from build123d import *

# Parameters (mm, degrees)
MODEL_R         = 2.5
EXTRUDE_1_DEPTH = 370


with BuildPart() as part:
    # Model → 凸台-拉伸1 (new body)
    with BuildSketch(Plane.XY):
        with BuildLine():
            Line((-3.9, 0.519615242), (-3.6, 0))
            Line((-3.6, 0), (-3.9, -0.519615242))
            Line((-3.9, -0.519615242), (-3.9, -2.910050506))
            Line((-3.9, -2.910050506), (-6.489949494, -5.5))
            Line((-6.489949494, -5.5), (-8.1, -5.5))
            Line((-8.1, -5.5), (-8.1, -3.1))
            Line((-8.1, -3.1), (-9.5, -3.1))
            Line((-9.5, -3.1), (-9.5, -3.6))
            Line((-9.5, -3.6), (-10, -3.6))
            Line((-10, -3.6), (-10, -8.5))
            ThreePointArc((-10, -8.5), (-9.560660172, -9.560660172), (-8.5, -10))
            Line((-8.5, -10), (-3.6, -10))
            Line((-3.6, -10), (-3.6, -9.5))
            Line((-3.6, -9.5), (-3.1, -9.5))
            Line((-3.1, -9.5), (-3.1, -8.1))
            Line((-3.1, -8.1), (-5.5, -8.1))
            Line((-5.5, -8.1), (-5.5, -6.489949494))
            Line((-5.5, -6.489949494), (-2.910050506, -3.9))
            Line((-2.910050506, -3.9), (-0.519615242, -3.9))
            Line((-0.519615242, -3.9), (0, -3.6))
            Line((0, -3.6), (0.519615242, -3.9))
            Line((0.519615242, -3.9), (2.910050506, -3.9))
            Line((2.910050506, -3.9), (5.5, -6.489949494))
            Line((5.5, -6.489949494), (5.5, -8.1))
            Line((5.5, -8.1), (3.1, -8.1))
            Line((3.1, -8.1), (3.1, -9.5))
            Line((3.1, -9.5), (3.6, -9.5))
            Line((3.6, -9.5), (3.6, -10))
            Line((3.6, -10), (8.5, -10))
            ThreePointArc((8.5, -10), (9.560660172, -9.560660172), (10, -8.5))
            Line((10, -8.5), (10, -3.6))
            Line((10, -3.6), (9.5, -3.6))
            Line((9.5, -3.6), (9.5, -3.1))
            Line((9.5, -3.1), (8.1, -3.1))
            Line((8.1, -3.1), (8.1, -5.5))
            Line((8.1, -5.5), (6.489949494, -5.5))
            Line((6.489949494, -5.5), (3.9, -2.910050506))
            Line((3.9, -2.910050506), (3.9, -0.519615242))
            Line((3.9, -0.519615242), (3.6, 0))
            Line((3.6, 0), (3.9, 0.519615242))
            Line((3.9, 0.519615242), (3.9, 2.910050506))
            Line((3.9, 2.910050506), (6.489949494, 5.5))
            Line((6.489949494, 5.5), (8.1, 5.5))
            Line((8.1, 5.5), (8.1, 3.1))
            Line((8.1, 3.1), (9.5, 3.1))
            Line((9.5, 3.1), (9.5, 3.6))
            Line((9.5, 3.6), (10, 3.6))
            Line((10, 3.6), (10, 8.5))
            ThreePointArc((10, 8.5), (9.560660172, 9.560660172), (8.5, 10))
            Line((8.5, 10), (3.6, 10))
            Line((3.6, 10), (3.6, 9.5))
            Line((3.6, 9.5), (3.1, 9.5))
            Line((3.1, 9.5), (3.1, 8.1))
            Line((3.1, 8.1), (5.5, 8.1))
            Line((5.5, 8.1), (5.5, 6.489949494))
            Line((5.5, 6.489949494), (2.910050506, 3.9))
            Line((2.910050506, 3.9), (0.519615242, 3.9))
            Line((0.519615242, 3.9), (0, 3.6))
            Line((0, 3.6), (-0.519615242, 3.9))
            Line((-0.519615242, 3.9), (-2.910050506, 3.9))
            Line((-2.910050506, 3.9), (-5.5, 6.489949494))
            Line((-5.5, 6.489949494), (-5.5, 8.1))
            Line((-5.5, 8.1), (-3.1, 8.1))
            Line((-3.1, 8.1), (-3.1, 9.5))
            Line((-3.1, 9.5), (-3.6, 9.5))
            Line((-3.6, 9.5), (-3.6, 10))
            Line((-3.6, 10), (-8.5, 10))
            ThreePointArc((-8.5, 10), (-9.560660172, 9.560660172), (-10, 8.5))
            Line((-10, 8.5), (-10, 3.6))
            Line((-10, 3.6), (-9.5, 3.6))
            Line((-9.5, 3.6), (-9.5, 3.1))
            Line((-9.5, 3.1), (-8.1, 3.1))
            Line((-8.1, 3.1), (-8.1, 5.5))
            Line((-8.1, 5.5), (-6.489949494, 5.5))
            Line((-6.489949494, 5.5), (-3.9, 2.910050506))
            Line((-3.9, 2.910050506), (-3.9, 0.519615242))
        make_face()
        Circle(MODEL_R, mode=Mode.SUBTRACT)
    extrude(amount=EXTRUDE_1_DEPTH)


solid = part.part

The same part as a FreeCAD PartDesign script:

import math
import FreeCAD as App
import Part
import Sketcher

V = App.Vector
Q = App.Units.Quantity

doc = App.newDocument("Part")
params = doc.addObject("Spreadsheet::Sheet", "Params")
for row, (alias, value) in enumerate([
    ("sketch1_diameter", "5 mm"),
    ("sketch1_radius", "1.5 mm"),
    ("sketch1_width", "1.4 mm"),
    ("sketch1_width2", "0.5 mm"),
    ("sketch1_width3", "4.9 mm"),
    ("pad1_length", "370 mm"),
], start=1):
    params.set(f"A{row}", alias)
    params.set(f"B{row}", "=" + value)
    params.setAlias(f"B{row}", alias)

body = doc.addObject("PartDesign::Body", "Body")

sketch1 = body.newObject("Sketcher::SketchObject", "Sketch")
sketch1.AttachmentSupport = (doc.getObject("XY_Plane"), [""])
sketch1.MapMode = "FlatFace"
sketch1.addGeometry(Part.LineSegment(V(-3.9, 0.5, 0), V(-3.6, 0, 0)), False)
sketch1.addGeometry(Part.LineSegment(V(-3.6, 0, 0), V(-3.9, -0.5, 0)), False)
sketch1.addGeometry(Part.LineSegment(V(-3.9, -0.5, 0), V(-3.9, -2.9, 0)), False)
sketch1.addGeometry(Part.LineSegment(V(-3.9, -2.9, 0), V(-6.5, -5.5, 0)), False)
sketch1.addGeometry(Part.LineSegment(V(-6.5, -5.5, 0), V(-8.1, -5.5, 0)), False)
sketch1.addGeometry(Part.LineSegment(V(-8.1, -5.5, 0), V(-8.1, -3.1, 0)), False)
sketch1.addGeometry(Part.LineSegment(V(-8.1, -3.1, 0), V(-9.5, -3.1, 0)), False)
sketch1.addGeometry(Part.LineSegment(V(-9.5, -3.1, 0), V(-9.5, -3.6, 0)), False)
sketch1.addGeometry(Part.LineSegment(V(-9.5, -3.6, 0), V(-10, -3.6, 0)), False)
sketch1.addGeometry(Part.LineSegment(V(-10, -3.6, 0), V(-10, -8.5, 0)), False)
sketch1.addGeometry(Part.ArcOfCircle(Part.Circle(V(-8.5, -8.5, 0), V(0, 0, 1), 1.5), math.radians(180), math.radians(270)), False)
sketch1.addGeometry(Part.LineSegment(V(-8.5, -10, 0), V(-3.6, -10, 0)), False)
sketch1.addGeometry(Part.LineSegment(V(-3.6, -10, 0), V(-3.6, -9.5, 0)), False)
sketch1.addGeometry(Part.LineSegment(V(-3.6, -9.5, 0), V(-3.1, -9.5, 0)), False)
sketch1.addGeometry(Part.LineSegment(V(-3.1, -9.5, 0), V(-3.1, -8.1, 0)), False)
sketch1.addGeometry(Part.LineSegment(V(-3.1, -8.1, 0), V(-5.5, -8.1, 0)), False)
sketch1.addGeometry(Part.LineSegment(V(-5.5, -8.1, 0), V(-5.5, -6.5, 0)), False)
sketch1.addGeometry(Part.LineSegment(V(-5.5, -6.5, 0), V(-2.9, -3.9, 0)), False)
sketch1.addGeometry(Part.LineSegment(V(-2.9, -3.9, 0), V(-0.5, -3.9, 0)), False)
sketch1.addGeometry(Part.LineSegment(V(-0.5, -3.9, 0), V(0, -3.6, 0)), False)
sketch1.addGeometry(Part.LineSegment(V(0, -3.6, 0), V(0.5, -3.9, 0)), False)
sketch1.addGeometry(Part.LineSegment(V(0.5, -3.9, 0), V(2.9, -3.9, 0)), False)
sketch1.addGeometry(Part.LineSegment(V(2.9, -3.9, 0), V(5.5, -6.5, 0)), False)
sketch1.addGeometry(Part.LineSegment(V(5.5, -6.5, 0), V(5.5, -8.1, 0)), False)
sketch1.addGeometry(Part.LineSegment(V(5.5, -8.1, 0), V(3.1, -8.1, 0)), False)
sketch1.addGeometry(Part.LineSegment(V(3.1, -8.1, 0), V(3.1, -9.5, 0)), False)
sketch1.addGeometry(Part.LineSegment(V(3.1, -9.5, 0), V(3.6, -9.5, 0)), False)
sketch1.addGeometry(Part.LineSegment(V(3.6, -9.5, 0), V(3.6, -10, 0)), False)
sketch1.addGeometry(Part.LineSegment(V(3.6, -10, 0), V(8.5, -10, 0)), False)
sketch1.addGeometry(Part.ArcOfCircle(Part.Circle(V(8.5, -8.5, 0), V(0, 0, 1), 1.5), math.radians(-90), math.radians(0)), False)
sketch1.addGeometry(Part.LineSegment(V(10, -8.5, 0), V(10, -3.6, 0)), False)
sketch1.addGeometry(Part.LineSegment(V(10, -3.6, 0), V(9.5, -3.6, 0)), False)
sketch1.addGeometry(Part.LineSegment(V(9.5, -3.6, 0), V(9.5, -3.1, 0)), False)
sketch1.addGeometry(Part.LineSegment(V(9.5, -3.1, 0), V(8.1, -3.1, 0)), False)
sketch1.addGeometry(Part.LineSegment(V(8.1, -3.1, 0), V(8.1, -5.5, 0)), False)
sketch1.addGeometry(Part.LineSegment(V(8.1, -5.5, 0), V(6.5, -5.5, 0)), False)
sketch1.addGeometry(Part.LineSegment(V(6.5, -5.5, 0), V(3.9, -2.9, 0)), False)
sketch1.addGeometry(Part.LineSegment(V(3.9, -2.9, 0), V(3.9, -0.5, 0)), False)
sketch1.addGeometry(Part.LineSegment(V(3.9, -0.5, 0), V(3.6, 0, 0)), False)
sketch1.addGeometry(Part.LineSegment(V(3.6, 0, 0), V(3.9, 0.5, 0)), False)
sketch1.addGeometry(Part.LineSegment(V(3.9, 0.5, 0), V(3.9, 2.9, 0)), False)
sketch1.addGeometry(Part.LineSegment(V(3.9, 2.9, 0), V(6.5, 5.5, 0)), False)
sketch1.addGeometry(Part.LineSegment(V(6.5, 5.5, 0), V(8.1, 5.5, 0)), False)
sketch1.addGeometry(Part.LineSegment(V(8.1, 5.5, 0), V(8.1, 3.1, 0)), False)
sketch1.addGeometry(Part.LineSegment(V(8.1, 3.1, 0), V(9.5, 3.1, 0)), False)
sketch1.addGeometry(Part.LineSegment(V(9.5, 3.1, 0), V(9.5, 3.6, 0)), False)
sketch1.addGeometry(Part.LineSegment(V(9.5, 3.6, 0), V(10, 3.6, 0)), False)
sketch1.addGeometry(Part.LineSegment(V(10, 3.6, 0), V(10, 8.5, 0)), False)
sketch1.addGeometry(Part.ArcOfCircle(Part.Circle(V(8.5, 8.5, 0), V(0, 0, 1), 1.5), math.radians(0), math.radians(90)), False)
sketch1.addGeometry(Part.LineSegment(V(8.5, 10, 0), V(3.6, 10, 0)), False)
sketch1.addGeometry(Part.LineSegment(V(3.6, 10, 0), V(3.6, 9.5, 0)), False)
sketch1.addGeometry(Part.LineSegment(V(3.6, 9.5, 0), V(3.1, 9.5, 0)), False)
sketch1.addGeometry(Part.LineSegment(V(3.1, 9.5, 0), V(3.1, 8.1, 0)), False)
sketch1.addGeometry(Part.LineSegment(V(3.1, 8.1, 0), V(5.5, 8.1, 0)), False)
sketch1.addGeometry(Part.LineSegment(V(5.5, 8.1, 0), V(5.5, 6.5, 0)), False)
sketch1.addGeometry(Part.LineSegment(V(5.5, 6.5, 0), V(2.9, 3.9, 0)), False)
sketch1.addGeometry(Part.LineSegment(V(2.9, 3.9, 0), V(0.5, 3.9, 0)), False)
sketch1.addGeometry(Part.LineSegment(V(0.5, 3.9, 0), V(0, 3.6, 0)), False)
sketch1.addGeometry(Part.LineSegment(V(0, 3.6, 0), V(-0.5, 3.9, 0)), False)
sketch1.addGeometry(Part.LineSegment(V(-0.5, 3.9, 0), V(-2.9, 3.9, 0)), False)
sketch1.addGeometry(Part.LineSegment(V(-2.9, 3.9, 0), V(-5.5, 6.5, 0)), False)
sketch1.addGeometry(Part.LineSegment(V(-5.5, 6.5, 0), V(-5.5, 8.1, 0)), False)
sketch1.addGeometry(Part.LineSegment(V(-5.5, 8.1, 0), V(-3.1, 8.1, 0)), False)
sketch1.addGeometry(Part.LineSegment(V(-3.1, 8.1, 0), V(-3.1, 9.5, 0)), False)
sketch1.addGeometry(Part.LineSegment(V(-3.1, 9.5, 0), V(-3.6, 9.5, 0)), False)
sketch1.addGeometry(Part.LineSegment(V(-3.6, 9.5, 0), V(-3.6, 10, 0)), False)
sketch1.addGeometry(Part.LineSegment(V(-3.6, 10, 0), V(-8.5, 10, 0)), False)
sketch1.addGeometry(Part.ArcOfCircle(Part.Circle(V(-8.5, 8.5, 0), V(0, 0, 1), 1.5), math.radians(90), math.radians(180)), False)
sketch1.addGeometry(Part.LineSegment(V(-10, 8.5, 0), V(-10, 3.6, 0)), False)
sketch1.addGeometry(Part.LineSegment(V(-10, 3.6, 0), V(-9.5, 3.6, 0)), False)
sketch1.addGeometry(Part.LineSegment(V(-9.5, 3.6, 0), V(-9.5, 3.1, 0)), False)
sketch1.addGeometry(Part.LineSegment(V(-9.5, 3.1, 0), V(-8.1, 3.1, 0)), False)
sketch1.addGeometry(Part.LineSegment(V(-8.1, 3.1, 0), V(-8.1, 5.5, 0)), False)
sketch1.addGeometry(Part.LineSegment(V(-8.1, 5.5, 0), V(-6.5, 5.5, 0)), False)
sketch1.addGeometry(Part.LineSegment(V(-6.5, 5.5, 0), V(-3.9, 2.9, 0)), False)
sketch1.addGeometry(Part.LineSegment(V(-3.9, 2.9, 0), V(-3.9, 0.5, 0)), False)
sketch1.addGeometry(Part.Circle(V(0, 0, 0), V(0, 0, 1), 2.5), False)
sketch1.addConstraint(Sketcher.Constraint("Coincident", 0, 2, 1, 1))
sketch1.addConstraint(Sketcher.Constraint("Coincident", 1, 2, 2, 1))
sketch1.addConstraint(Sketcher.Constraint("Coincident", 2, 2, 3, 1))
sketch1.addConstraint(Sketcher.Constraint("Coincident", 3, 2, 4, 1))
sketch1.addConstraint(Sketcher.Constraint("Coincident", 4, 2, 5, 1))
sketch1.addConstraint(Sketcher.Constraint("Coincident", 5, 2, 6, 1))
sketch1.addConstraint(Sketcher.Constraint("Coincident", 6, 2, 7, 1))
sketch1.addConstraint(Sketcher.Constraint("Coincident", 7, 2, 8, 1))
sketch1.addConstraint(Sketcher.Constraint("Coincident", 8, 2, 9, 1))
sketch1.addConstraint(Sketcher.Constraint("Tangent", 9, 2, 10, 1))
sketch1.addConstraint(Sketcher.Constraint("Tangent", 10, 2, 11, 1))
sketch1.addConstraint(Sketcher.Constraint("Coincident", 11, 2, 12, 1))
sketch1.addConstraint(Sketcher.Constraint("Coincident", 12, 2, 13, 1))
sketch1.addConstraint(Sketcher.Constraint("Coincident", 13, 2, 14, 1))
sketch1.addConstraint(Sketcher.Constraint("Coincident", 14, 2, 15, 1))
sketch1.addConstraint(Sketcher.Constraint("Coincident", 15, 2, 16, 1))
sketch1.addConstraint(Sketcher.Constraint("Coincident", 16, 2, 17, 1))
sketch1.addConstraint(Sketcher.Constraint("Coincident", 17, 2, 18, 1))
sketch1.addConstraint(Sketcher.Constraint("Coincident", 18, 2, 19, 1))
sketch1.addConstraint(Sketcher.Constraint("Coincident", 19, 2, 20, 1))
sketch1.addConstraint(Sketcher.Constraint("Coincident", 20, 2, 21, 1))
sketch1.addConstraint(Sketcher.Constraint("Coincident", 21, 2, 22, 1))
sketch1.addConstraint(Sketcher.Constraint("Coincident", 22, 2, 23, 1))
sketch1.addConstraint(Sketcher.Constraint("Coincident", 23, 2, 24, 1))
sketch1.addConstraint(Sketcher.Constraint("Coincident", 24, 2, 25, 1))
sketch1.addConstraint(Sketcher.Constraint("Coincident", 25, 2, 26, 1))
sketch1.addConstraint(Sketcher.Constraint("Coincident", 26, 2, 27, 1))
sketch1.addConstraint(Sketcher.Constraint("Coincident", 27, 2, 28, 1))
sketch1.addConstraint(Sketcher.Constraint("Tangent", 28, 2, 29, 1))
sketch1.addConstraint(Sketcher.Constraint("Tangent", 29, 2, 30, 1))
sketch1.addConstraint(Sketcher.Constraint("Coincident", 30, 2, 31, 1))
sketch1.addConstraint(Sketcher.Constraint("Coincident", 31, 2, 32, 1))
sketch1.addConstraint(Sketcher.Constraint("Coincident", 32, 2, 33, 1))
sketch1.addConstraint(Sketcher.Constraint("Coincident", 33, 2, 34, 1))
sketch1.addConstraint(Sketcher.Constraint("Coincident", 34, 2, 35, 1))
sketch1.addConstraint(Sketcher.Constraint("Coincident", 35, 2, 36, 1))
sketch1.addConstraint(Sketcher.Constraint("Coincident", 36, 2, 37, 1))
sketch1.addConstraint(Sketcher.Constraint("Coincident", 37, 2, 38, 1))
sketch1.addConstraint(Sketcher.Constraint("Coincident", 38, 2, 39, 1))
sketch1.addConstraint(Sketcher.Constraint("Coincident", 39, 2, 40, 1))
sketch1.addConstraint(Sketcher.Constraint("Coincident", 40, 2, 41, 1))
sketch1.addConstraint(Sketcher.Constraint("Coincident", 41, 2, 42, 1))
sketch1.addConstraint(Sketcher.Constraint("Coincident", 42, 2, 43, 1))
sketch1.addConstraint(Sketcher.Constraint("Coincident", 43, 2, 44, 1))
sketch1.addConstraint(Sketcher.Constraint("Coincident", 44, 2, 45, 1))
sketch1.addConstraint(Sketcher.Constraint("Coincident", 45, 2, 46, 1))
sketch1.addConstraint(Sketcher.Constraint("Coincident", 46, 2, 47, 1))
sketch1.addConstraint(Sketcher.Constraint("Tangent", 47, 2, 48, 1))
sketch1.addConstraint(Sketcher.Constraint("Tangent", 48, 2, 49, 1))
sketch1.addConstraint(Sketcher.Constraint("Coincident", 49, 2, 50, 1))
sketch1.addConstraint(Sketcher.Constraint("Coincident", 50, 2, 51, 1))
sketch1.addConstraint(Sketcher.Constraint("Coincident", 51, 2, 52, 1))
sketch1.addConstraint(Sketcher.Constraint("Coincident", 52, 2, 53, 1))
sketch1.addConstraint(Sketcher.Constraint("Coincident", 53, 2, 54, 1))
sketch1.addConstraint(Sketcher.Constraint("Coincident", 54, 2, 55, 1))
sketch1.addConstraint(Sketcher.Constraint("Coincident", 55, 2, 56, 1))
sketch1.addConstraint(Sketcher.Constraint("Coincident", 56, 2, 57, 1))
sketch1.addConstraint(Sketcher.Constraint("Coincident", 57, 2, 58, 1))
sketch1.addConstraint(Sketcher.Constraint("Coincident", 58, 2, 59, 1))
sketch1.addConstraint(Sketcher.Constraint("Coincident", 59, 2, 60, 1))
sketch1.addConstraint(Sketcher.Constraint("Coincident", 60, 2, 61, 1))
sketch1.addConstraint(Sketcher.Constraint("Coincident", 61, 2, 62, 1))
sketch1.addConstraint(Sketcher.Constraint("Coincident", 62, 2, 63, 1))
sketch1.addConstraint(Sketcher.Constraint("Coincident", 63, 2, 64, 1))
sketch1.addConstraint(Sketcher.Constraint("Coincident", 64, 2, 65, 1))
sketch1.addConstraint(Sketcher.Constraint("Coincident", 65, 2, 66, 1))
sketch1.addConstraint(Sketcher.Constraint("Tangent", 66, 2, 67, 1))
sketch1.addConstraint(Sketcher.Constraint("Tangent", 67, 2, 68, 1))
sketch1.addConstraint(Sketcher.Constraint("Coincident", 68, 2, 69, 1))
sketch1.addConstraint(Sketcher.Constraint("Coincident", 69, 2, 70, 1))
sketch1.addConstraint(Sketcher.Constraint("Coincident", 70, 2, 71, 1))
sketch1.addConstraint(Sketcher.Constraint("Coincident", 71, 2, 72, 1))
sketch1.addConstraint(Sketcher.Constraint("Coincident", 72, 2, 73, 1))
sketch1.addConstraint(Sketcher.Constraint("Coincident", 73, 2, 74, 1))
sketch1.addConstraint(Sketcher.Constraint("Coincident", 74, 2, 75, 1))
sketch1.addConstraint(Sketcher.Constraint("Coincident", 75, 2, 0, 1))
sketch1.addConstraint(Sketcher.Constraint("Vertical", 2))
sketch1.addConstraint(Sketcher.Constraint("Horizontal", 4))
sketch1.addConstraint(Sketcher.Constraint("Vertical", 5))
sketch1.addConstraint(Sketcher.Constraint("Horizontal", 6))
sketch1.addConstraint(Sketcher.Constraint("Vertical", 7))
sketch1.addConstraint(Sketcher.Constraint("Horizontal", 8))
sketch1.addConstraint(Sketcher.Constraint("Vertical", 9))
sketch1.addConstraint(Sketcher.Constraint("Horizontal", 11))
sketch1.addConstraint(Sketcher.Constraint("Vertical", 12))
sketch1.addConstraint(Sketcher.Constraint("Horizontal", 13))
sketch1.addConstraint(Sketcher.Constraint("Vertical", 14))
sketch1.addConstraint(Sketcher.Constraint("Horizontal", 15))
sketch1.addConstraint(Sketcher.Constraint("Vertical", 16))
sketch1.addConstraint(Sketcher.Constraint("Horizontal", 18))
sketch1.addConstraint(Sketcher.Constraint("Horizontal", 21))
sketch1.addConstraint(Sketcher.Constraint("Vertical", 23))
sketch1.addConstraint(Sketcher.Constraint("Horizontal", 24))
sketch1.addConstraint(Sketcher.Constraint("Vertical", 25))
sketch1.addConstraint(Sketcher.Constraint("Horizontal", 26))
sketch1.addConstraint(Sketcher.Constraint("Vertical", 27))
sketch1.addConstraint(Sketcher.Constraint("Horizontal", 28))
sketch1.addConstraint(Sketcher.Constraint("Vertical", 30))
sketch1.addConstraint(Sketcher.Constraint("Horizontal", 31))
sketch1.addConstraint(Sketcher.Constraint("Vertical", 32))
sketch1.addConstraint(Sketcher.Constraint("Horizontal", 33))
sketch1.addConstraint(Sketcher.Constraint("Vertical", 34))
sketch1.addConstraint(Sketcher.Constraint("Horizontal", 35))
sketch1.addConstraint(Sketcher.Constraint("Vertical", 37))
sketch1.addConstraint(Sketcher.Constraint("Vertical", 40))
sketch1.addConstraint(Sketcher.Constraint("Horizontal", 42))
sketch1.addConstraint(Sketcher.Constraint("Vertical", 43))
sketch1.addConstraint(Sketcher.Constraint("Horizontal", 44))
sketch1.addConstraint(Sketcher.Constraint("Vertical", 45))
sketch1.addConstraint(Sketcher.Constraint("Horizontal", 46))
sketch1.addConstraint(Sketcher.Constraint("Vertical", 47))
sketch1.addConstraint(Sketcher.Constraint("Horizontal", 49))
sketch1.addConstraint(Sketcher.Constraint("Vertical", 50))
sketch1.addConstraint(Sketcher.Constraint("Horizontal", 51))
sketch1.addConstraint(Sketcher.Constraint("Vertical", 52))
sketch1.addConstraint(Sketcher.Constraint("Horizontal", 53))
sketch1.addConstraint(Sketcher.Constraint("Vertical", 54))
sketch1.addConstraint(Sketcher.Constraint("Horizontal", 56))
sketch1.addConstraint(Sketcher.Constraint("Horizontal", 59))
sketch1.addConstraint(Sketcher.Constraint("Vertical", 61))
sketch1.addConstraint(Sketcher.Constraint("Horizontal", 62))
sketch1.addConstraint(Sketcher.Constraint("Vertical", 63))
sketch1.addConstraint(Sketcher.Constraint("Horizontal", 64))
sketch1.addConstraint(Sketcher.Constraint("Vertical", 65))
sketch1.addConstraint(Sketcher.Constraint("Horizontal", 66))
sketch1.addConstraint(Sketcher.Constraint("Vertical", 68))
sketch1.addConstraint(Sketcher.Constraint("Horizontal", 69))
sketch1.addConstraint(Sketcher.Constraint("Vertical", 70))
sketch1.addConstraint(Sketcher.Constraint("Horizontal", 71))
sketch1.addConstraint(Sketcher.Constraint("Vertical", 72))
sketch1.addConstraint(Sketcher.Constraint("Horizontal", 73))
sketch1.addConstraint(Sketcher.Constraint("Vertical", 75))
sketch1.addConstraint(Sketcher.Constraint("Coincident", 76, 3, -1, 1))
sketch1.addConstraint(Sketcher.Constraint("Equal", 10, 29))
sketch1.addConstraint(Sketcher.Constraint("Equal", 29, 48))
sketch1.addConstraint(Sketcher.Constraint("Equal", 48, 67))
sketch1.addConstraint(Sketcher.Constraint("Symmetric", 10, 3, 48, 3, -1, 1))
sketch1.addConstraint(Sketcher.Constraint("Symmetric", 29, 3, 67, 3, -1, 1))
sketch1.addConstraint(Sketcher.Constraint("Symmetric", 0, 2, 38, 2, -1, 1))
sketch1.addConstraint(Sketcher.Constraint("Symmetric", 1, 2, 39, 2, -1, 1))
sketch1.addConstraint(Sketcher.Constraint("Symmetric", 3, 2, 41, 2, -1, 1))
sketch1.addConstraint(Sketcher.Constraint("Symmetric", 5, 2, 43, 2, -1, 1))
sketch1.addConstraint(Sketcher.Constraint("Symmetric", 7, 2, 45, 2, -1, 1))
sketch1.addConstraint(Sketcher.Constraint("Symmetric", 12, 2, 50, 2, -1, 1))
sketch1.addConstraint(Sketcher.Constraint("Symmetric", 14, 2, 52, 2, -1, 1))
sketch1.addConstraint(Sketcher.Constraint("Symmetric", 16, 2, 54, 2, -1, 1))
sketch1.addConstraint(Sketcher.Constraint("Symmetric", 17, 2, 55, 2, -1, 1))
sketch1.addConstraint(Sketcher.Constraint("Symmetric", 19, 2, 57, 2, -1, 1))
sketch1.addConstraint(Sketcher.Constraint("Symmetric", 20, 2, 58, 2, -1, 1))
sketch1.addConstraint(Sketcher.Constraint("Symmetric", 22, 2, 60, 2, -1, 1))
sketch1.addConstraint(Sketcher.Constraint("Symmetric", 24, 2, 62, 2, -1, 1))
sketch1.addConstraint(Sketcher.Constraint("Symmetric", 26, 2, 64, 2, -1, 1))
sketch1.addConstraint(Sketcher.Constraint("Symmetric", 31, 2, 69, 2, -1, 1))
sketch1.addConstraint(Sketcher.Constraint("Symmetric", 33, 2, 71, 2, -1, 1))
sketch1.addConstraint(Sketcher.Constraint("Symmetric", 35, 2, 73, 2, -1, 1))
sketch1.addConstraint(Sketcher.Constraint("Symmetric", 36, 2, 74, 2, -1, 1))
sketch1.addConstraint(Sketcher.Constraint("Symmetric", 10, 3, 29, 3, -2))
sketch1.addConstraint(Sketcher.Constraint("Symmetric", 18, 2, 20, 2, -2))
sketch1.addConstraint(Sketcher.Constraint("Symmetric", 16, 2, 22, 2, -2))
sketch1.addConstraint(Sketcher.Constraint("Symmetric", 14, 2, 24, 2, -2))
sketch1.addConstraint(Sketcher.Constraint("Symmetric", 12, 2, 26, 2, -2))
sketch1.addConstraint(Sketcher.Constraint("Symmetric", 7, 2, 31, 2, -2))
sketch1.addConstraint(Sketcher.Constraint("Symmetric", 5, 2, 33, 2, -2))
sketch1.addConstraint(Sketcher.Constraint("Symmetric", 3, 2, 35, 2, -2))
sketch1.addConstraint(Sketcher.Constraint("Symmetric", 2, 2, 36, 2, -2))
sketch1.addConstraint(Sketcher.Constraint("PointOnObject", 0, 2, -1))
sketch1.addConstraint(Sketcher.Constraint("PointOnObject", 19, 2, -2))
sketch1.addConstraint(Sketcher.Constraint("Parallel", 3, 17))
sketch1.addConstraint(Sketcher.Constraint("Perpendicular", 0, 19))
sketch1.addConstraint(Sketcher.Constraint("Perpendicular", 1, 20))
sketch1.addConstraint(Sketcher.Constraint("Perpendicular", 17, 22))
sketch1.addConstraint(Sketcher.Constraint("Parallel", 22, 36))
sketch1.addConstraint(Sketcher.Constraint("Perpendicular", 19, 38))
sketch1.addConstraint(Sketcher.Constraint("Perpendicular", 36, 41))
sketch1.addConstraint(Sketcher.Constraint("Perpendicular", 38, 57))
sketch1.addConstraint(Sketcher.Constraint("Perpendicular", 55, 60))
sketch1.addConstraint(Sketcher.Constraint("Horizontal", 8, 2, 19, 2))
sketch1.addConstraint(Sketcher.Constraint("Vertical", 0, 2, 11, 2))
sketch1.addConstraint(Sketcher.Constraint("Equal", 8, 13))
sketch1.addConstraint(Sketcher.Constraint("Equal", 59, 2))
sketch1.addConstraint(Sketcher.Constraint("Equal", 62, 5))
sketch1.addConstraint(Sketcher.Constraint("Equal", 69, 7))
sketch1.addConstraint(Sketcher.Constraint("Equal", 66, 9))
sketch1.addConstraint(Sketcher.Constraint("Equal", 7, 12))
sketch1.addConstraint(Sketcher.Constraint("Equal", 71, 14))
sketch1.addConstraint(Sketcher.Constraint("Equal", 73, 16))
sketch1.addConstraint(Sketcher.Constraint("Equal", 3, 17))
sketch1.addConstraint(Sketcher.Constraint("Diameter", 76, Q("5 mm")))
sketch1.addConstraint(Sketcher.Constraint("Radius", 10, Q("1.5 mm")))
sketch1.addConstraint(Sketcher.Constraint("Angle", 0, Q("-60 deg")))
sketch1.addConstraint(Sketcher.Constraint("DistanceX", 6, 2, 6, 1, Q("1.4 mm")))
sketch1.addConstraint(Sketcher.Constraint("DistanceX", 8, 2, 8, 1, Q("0.5 mm")))
sketch1.addConstraint(Sketcher.Constraint("DistanceX", 11, 1, 11, 2, Q("4.9 mm")))
sketch1.addConstraint(Sketcher.Constraint("DistanceX", 15, 2, 15, 1, Q("2.4 mm")))
sketch1.addConstraint(Sketcher.Constraint("DistanceX", 8, 2, -1, 1, Q("10 mm")))
sketch1.addConstraint(Sketcher.Constraint("Distance", 0, Q("0.6 mm")))
sketch1.addConstraint(Sketcher.Constraint("DistanceX", 4, 2, 4, 1, Q("1.610051 mm")))
sketch1.setExpression("Constraints[187]", "Params.sketch1_diameter")
sketch1.setExpression("Constraints[188]", "Params.sketch1_radius")
sketch1.setExpression("Constraints[190]", "Params.sketch1_width")
sketch1.setExpression("Constraints[191]", "Params.sketch1_width2")
sketch1.setExpression("Constraints[192]", "Params.sketch1_width3")
pad1 = body.newObject("PartDesign::Pad", "Pad")
pad1.Profile = sketch1
pad1.setExpression("Length", "Params.pad1_length")

doc.recompute()
